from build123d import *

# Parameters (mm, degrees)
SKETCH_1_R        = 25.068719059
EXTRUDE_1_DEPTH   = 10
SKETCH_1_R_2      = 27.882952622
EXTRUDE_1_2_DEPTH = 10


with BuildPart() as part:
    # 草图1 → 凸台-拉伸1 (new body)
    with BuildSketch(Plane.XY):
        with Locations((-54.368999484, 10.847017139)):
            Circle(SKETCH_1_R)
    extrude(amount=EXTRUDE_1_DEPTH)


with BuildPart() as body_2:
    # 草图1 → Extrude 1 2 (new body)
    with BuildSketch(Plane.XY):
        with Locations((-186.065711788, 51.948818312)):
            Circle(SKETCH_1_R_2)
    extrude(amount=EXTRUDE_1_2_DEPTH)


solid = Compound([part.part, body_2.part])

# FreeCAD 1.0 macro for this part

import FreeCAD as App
import Part
import Sketcher

doc = App.newDocument("Part")
params = doc.addObject("Spreadsheet::Sheet", "Params")
for row, (alias, value) in enumerate([
    ("pad1_length", "10 mm"),
    ("pad2_length", "10 mm"),
], start=1):
    params.set(f"A{row}", alias)
    params.set(f"B{row}", "=" + value)
    params.setAlias(f"B{row}", alias)

body = doc.addObject("PartDesign::Body", "Body")

sketch1 = body.newObject("Sketcher::SketchObject", "Sketch")
sketch1.AttachmentSupport = (doc.getObject("XY_Plane"), [""])
sketch1.MapMode = "FlatFace"
sketch1.addGeometry(Part.Circle(App.Vector(-54.368999, 10.847017, 0), App.Vector(0, 0, 1), 25.068719), False)
sketch1.addConstraint([
    Sketcher.Constraint("Diameter", 0, 50.137438),
    Sketcher.Constraint("DistanceX", 0, 3, -1, 1, 54.368999),
    Sketcher.Constraint("DistanceY", -1, 1, 0, 3, 10.847017),
])
pad1 = body.newObject("PartDesign::Pad", "Pad")
pad1.Profile = sketch1
pad1.setExpression("Length", "Params.pad1_length")
body2 = doc.addObject("PartDesign::Body", "Body001")

sketch2 = body2.newObject("Sketcher::SketchObject", "Sketch001")
sketch2.AttachmentSupport = (doc.getObject("XY_Plane001"), [""])
sketch2.MapMode = "FlatFace"
sketch2.addGeometry(Part.Circle(App.Vector(-186.065712, 51.948818, 0), App.Vector(0, 0, 1), 27.882953), False)
sketch2.addConstraint([
    Sketcher.Constraint("Diameter", 0, 55.765905),
    Sketcher.Constraint("DistanceX", 0, 3, -1, 1, 186.065712),
    Sketcher.Constraint("DistanceY", -1, 1, 0, 3, 51.948818),
])
pad2 = body2.newObject("PartDesign::Pad", "Pad001")
pad2.Profile = sketch2
pad2.setExpression("Length", "Params.pad2_length")

doc.recompute()
